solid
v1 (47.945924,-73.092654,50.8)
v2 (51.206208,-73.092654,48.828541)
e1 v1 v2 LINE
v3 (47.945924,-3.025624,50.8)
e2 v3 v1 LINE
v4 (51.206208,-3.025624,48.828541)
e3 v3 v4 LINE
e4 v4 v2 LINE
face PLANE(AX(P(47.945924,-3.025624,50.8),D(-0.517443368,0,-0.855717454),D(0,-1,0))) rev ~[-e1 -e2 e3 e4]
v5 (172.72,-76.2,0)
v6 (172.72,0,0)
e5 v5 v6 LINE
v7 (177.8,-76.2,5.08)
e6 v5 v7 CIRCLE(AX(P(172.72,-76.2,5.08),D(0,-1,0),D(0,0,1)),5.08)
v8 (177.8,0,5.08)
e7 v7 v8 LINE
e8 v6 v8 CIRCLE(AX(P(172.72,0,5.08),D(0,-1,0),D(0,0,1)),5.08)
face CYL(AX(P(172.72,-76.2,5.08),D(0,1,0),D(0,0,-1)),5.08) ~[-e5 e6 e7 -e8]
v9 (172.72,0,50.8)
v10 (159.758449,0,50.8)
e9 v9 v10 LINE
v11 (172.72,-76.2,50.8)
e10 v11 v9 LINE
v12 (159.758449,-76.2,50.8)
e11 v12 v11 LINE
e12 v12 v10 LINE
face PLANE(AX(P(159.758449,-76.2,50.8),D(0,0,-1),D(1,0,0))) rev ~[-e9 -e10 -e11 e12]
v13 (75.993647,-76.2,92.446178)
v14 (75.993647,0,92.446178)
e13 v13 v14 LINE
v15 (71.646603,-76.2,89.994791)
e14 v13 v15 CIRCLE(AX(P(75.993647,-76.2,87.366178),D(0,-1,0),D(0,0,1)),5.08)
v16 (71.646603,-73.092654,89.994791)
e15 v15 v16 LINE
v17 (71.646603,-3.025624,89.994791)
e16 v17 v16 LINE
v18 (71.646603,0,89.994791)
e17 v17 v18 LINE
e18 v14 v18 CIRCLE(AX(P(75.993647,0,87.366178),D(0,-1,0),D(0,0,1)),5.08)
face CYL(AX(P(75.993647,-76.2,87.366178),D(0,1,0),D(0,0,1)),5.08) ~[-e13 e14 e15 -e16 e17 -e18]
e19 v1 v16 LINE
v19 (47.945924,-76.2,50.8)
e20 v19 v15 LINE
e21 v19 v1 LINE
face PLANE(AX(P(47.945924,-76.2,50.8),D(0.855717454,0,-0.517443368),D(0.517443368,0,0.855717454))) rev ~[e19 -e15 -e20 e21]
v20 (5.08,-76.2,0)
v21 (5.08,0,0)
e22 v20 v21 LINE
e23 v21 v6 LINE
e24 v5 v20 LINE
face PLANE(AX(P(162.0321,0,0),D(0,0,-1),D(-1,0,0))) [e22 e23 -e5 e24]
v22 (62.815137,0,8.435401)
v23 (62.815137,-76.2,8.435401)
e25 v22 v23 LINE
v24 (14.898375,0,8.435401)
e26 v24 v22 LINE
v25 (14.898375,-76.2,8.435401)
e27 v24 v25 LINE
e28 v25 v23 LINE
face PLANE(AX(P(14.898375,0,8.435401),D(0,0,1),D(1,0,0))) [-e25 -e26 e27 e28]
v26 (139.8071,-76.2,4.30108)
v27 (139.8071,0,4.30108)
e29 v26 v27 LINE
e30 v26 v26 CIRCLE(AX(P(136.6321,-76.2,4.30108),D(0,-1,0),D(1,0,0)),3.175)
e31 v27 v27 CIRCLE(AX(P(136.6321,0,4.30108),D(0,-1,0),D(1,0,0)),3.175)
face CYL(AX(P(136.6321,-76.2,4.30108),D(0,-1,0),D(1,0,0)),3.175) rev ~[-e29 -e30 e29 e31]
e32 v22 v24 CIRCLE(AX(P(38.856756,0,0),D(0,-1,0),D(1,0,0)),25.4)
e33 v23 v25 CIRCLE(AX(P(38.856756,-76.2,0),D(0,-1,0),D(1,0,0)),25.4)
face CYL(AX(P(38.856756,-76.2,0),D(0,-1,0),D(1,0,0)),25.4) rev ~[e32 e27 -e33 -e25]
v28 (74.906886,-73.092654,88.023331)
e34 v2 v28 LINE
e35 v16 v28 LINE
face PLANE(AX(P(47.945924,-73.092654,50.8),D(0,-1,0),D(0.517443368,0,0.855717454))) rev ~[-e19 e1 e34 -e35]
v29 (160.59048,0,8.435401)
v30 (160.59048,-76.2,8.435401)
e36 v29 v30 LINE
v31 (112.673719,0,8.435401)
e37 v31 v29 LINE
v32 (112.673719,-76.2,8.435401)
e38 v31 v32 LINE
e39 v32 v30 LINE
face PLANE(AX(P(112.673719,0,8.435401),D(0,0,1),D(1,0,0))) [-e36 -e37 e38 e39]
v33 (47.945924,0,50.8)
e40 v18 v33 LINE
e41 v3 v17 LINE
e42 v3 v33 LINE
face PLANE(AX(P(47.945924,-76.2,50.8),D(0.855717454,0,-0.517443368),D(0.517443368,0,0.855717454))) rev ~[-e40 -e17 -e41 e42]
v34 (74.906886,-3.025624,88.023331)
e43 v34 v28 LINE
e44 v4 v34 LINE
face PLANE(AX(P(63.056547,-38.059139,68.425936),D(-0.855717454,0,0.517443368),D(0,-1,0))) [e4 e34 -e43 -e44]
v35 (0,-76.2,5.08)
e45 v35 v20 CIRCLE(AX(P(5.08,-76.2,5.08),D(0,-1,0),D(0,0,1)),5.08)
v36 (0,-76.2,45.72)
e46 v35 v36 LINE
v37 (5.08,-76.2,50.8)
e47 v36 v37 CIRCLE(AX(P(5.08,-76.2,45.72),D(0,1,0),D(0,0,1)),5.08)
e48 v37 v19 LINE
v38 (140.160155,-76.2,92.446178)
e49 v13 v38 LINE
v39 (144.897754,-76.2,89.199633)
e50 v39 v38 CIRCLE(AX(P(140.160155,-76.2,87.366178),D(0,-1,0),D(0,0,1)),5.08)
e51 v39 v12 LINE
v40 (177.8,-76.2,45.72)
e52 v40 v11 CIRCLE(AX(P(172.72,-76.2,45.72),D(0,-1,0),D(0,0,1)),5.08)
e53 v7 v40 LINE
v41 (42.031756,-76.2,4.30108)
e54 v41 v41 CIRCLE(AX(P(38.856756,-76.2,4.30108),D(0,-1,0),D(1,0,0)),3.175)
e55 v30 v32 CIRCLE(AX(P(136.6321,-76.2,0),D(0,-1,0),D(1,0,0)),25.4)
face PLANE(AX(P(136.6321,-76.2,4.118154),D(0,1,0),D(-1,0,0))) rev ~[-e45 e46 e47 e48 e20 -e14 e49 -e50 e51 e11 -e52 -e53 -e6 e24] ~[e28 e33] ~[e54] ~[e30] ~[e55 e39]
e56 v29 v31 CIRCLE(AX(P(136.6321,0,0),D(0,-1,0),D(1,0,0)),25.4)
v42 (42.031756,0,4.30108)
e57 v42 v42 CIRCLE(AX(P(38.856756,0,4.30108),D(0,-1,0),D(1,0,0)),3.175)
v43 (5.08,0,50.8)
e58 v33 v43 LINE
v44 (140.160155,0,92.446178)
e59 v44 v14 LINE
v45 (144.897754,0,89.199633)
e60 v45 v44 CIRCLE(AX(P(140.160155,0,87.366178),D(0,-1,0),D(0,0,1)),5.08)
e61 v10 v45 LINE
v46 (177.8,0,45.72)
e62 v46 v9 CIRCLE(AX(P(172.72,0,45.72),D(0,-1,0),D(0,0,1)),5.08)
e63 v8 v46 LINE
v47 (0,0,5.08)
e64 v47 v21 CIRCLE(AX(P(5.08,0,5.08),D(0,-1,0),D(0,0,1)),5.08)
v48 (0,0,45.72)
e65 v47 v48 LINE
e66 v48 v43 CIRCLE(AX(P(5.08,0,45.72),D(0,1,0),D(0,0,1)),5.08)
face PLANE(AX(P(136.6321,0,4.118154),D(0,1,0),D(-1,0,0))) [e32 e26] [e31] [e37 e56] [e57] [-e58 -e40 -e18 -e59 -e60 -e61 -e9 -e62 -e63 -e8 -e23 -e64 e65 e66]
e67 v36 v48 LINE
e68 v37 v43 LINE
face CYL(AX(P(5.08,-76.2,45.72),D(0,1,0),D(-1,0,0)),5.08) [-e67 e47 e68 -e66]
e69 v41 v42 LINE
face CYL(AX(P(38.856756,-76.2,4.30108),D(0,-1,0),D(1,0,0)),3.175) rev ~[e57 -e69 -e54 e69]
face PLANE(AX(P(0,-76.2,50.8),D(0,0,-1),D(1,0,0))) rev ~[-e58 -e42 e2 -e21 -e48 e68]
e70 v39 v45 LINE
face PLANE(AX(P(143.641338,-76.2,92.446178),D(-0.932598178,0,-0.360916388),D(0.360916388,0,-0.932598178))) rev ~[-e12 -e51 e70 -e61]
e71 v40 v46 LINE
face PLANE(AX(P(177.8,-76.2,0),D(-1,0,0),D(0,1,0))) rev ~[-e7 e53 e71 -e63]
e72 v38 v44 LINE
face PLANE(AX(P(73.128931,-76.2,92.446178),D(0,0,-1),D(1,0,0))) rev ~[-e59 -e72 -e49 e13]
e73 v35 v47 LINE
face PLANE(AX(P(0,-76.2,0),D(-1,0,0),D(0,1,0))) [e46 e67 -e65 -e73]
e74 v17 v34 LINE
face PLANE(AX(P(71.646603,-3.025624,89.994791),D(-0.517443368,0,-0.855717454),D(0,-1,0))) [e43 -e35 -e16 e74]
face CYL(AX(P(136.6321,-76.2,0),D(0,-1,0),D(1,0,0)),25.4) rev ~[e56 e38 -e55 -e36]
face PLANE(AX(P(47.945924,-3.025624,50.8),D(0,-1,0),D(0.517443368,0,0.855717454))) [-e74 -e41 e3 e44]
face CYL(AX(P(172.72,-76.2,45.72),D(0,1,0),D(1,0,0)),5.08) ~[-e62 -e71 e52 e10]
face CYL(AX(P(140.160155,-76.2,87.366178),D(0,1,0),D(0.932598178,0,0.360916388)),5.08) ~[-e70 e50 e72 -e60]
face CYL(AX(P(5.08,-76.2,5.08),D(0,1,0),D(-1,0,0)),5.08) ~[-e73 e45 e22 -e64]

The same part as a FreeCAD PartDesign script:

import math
import FreeCAD as App
import Part
import Sketcher
from FreeCAD import Vector
Q = App.Units.Quantity


def edges_at(feature, points):
    """Names of the edges that pass closest to the given points."""
    edges = feature.Shape.Edges
    near = lambda p: min(range(len(edges)), key=lambda i: edges[i].distToShape(Part.Vertex(*p))[0])
    return sorted({f"Edge{near(p) + 1}" for p in points})

doc = App.newDocument("Part")
body = doc.addObject("PartDesign::Body", "Body")

sketch1 = body.newObject("Sketcher::SketchObject", "Sketch")
sketch1.AttachmentSupport = (doc.getObject("XY_Plane"), [""])
sketch1.MapMode = "FlatFace"
sketch1.addGeometry([
    Part.LineSegment(Vector(0, 0, 0), Vector(0, -76.2, 0)),
    Part.LineSegment(Vector(0, -76.2, 0), Vector(177.8, -76.2, 0)),
    Part.LineSegment(Vector(177.8, -76.2, 0), Vector(177.8, 0, 0)),
    Part.LineSegment(Vector(177.8, 0, 0), Vector(0, 0, 0)),
], False)
sketch1.addConstraint([
    Sketcher.Constraint("Coincident", 0, 2, 1, 1),
    Sketcher.Constraint("Coincident", 1, 2, 2, 1),
    Sketcher.Constraint("Coincident", 2, 2, 3, 1),
    Sketcher.Constraint("Coincident", 3, 2, 0, 1),
    Sketcher.Constraint("Vertical", 0),
    Sketcher.Constraint("Horizontal", 1),
    Sketcher.Constraint("Vertical", 2),
    Sketcher.Constraint("Horizontal", 3),
    Sketcher.Constraint("Coincident", 3, 2, -1, 1),
    Sketcher.Constraint("DistanceX", 1, 1, 1, 2, Q("7 in")),
    Sketcher.Constraint("DistanceY", 0, 2, 0, 1, Q("3 in")),
])
pad1 = body.newObject("PartDesign::Pad", "Pad")
pad1.Profile = sketch1
pad1.Length = Q("4 in")

sketch2 = body.newObject("Sketcher::SketchObject", "Sketch001")
sketch2.AttachmentSupport = (doc.getObject("XZ_Plane"), [""])
sketch2.MapMode = "FlatFace"
sketch2.AttachmentOffset = App.Placement(Vector(0, 0, 3 * 25.4), App.Rotation())
sketch2.addGeometry([
    Part.LineSegment(Vector(0, 101.6, 0), Vector(0, 50.8, 0)),
    Part.LineSegment(Vector(0, 50.8, 0), Vector(47.945924, 50.8, 0)),
    Part.LineSegment(Vector(47.945924, 50.8, 0), Vector(73.128931, 92.446178, 0)),
    Part.LineSegment(Vector(73.128931, 92.446178, 0), Vector(143.641338, 92.446178, 0)),
    Part.LineSegment(Vector(143.641338, 92.446178, 0), Vector(159.758449, 50.8, 0)),
    Part.LineSegment(Vector(159.758449, 50.8, 0), Vector(177.8, 50.8, 0)),
    Part.LineSegment(Vector(177.8, 50.8, 0), Vector(177.8, 101.6, 0)),
    Part.LineSegment(Vector(177.8, 101.6, 0), Vector(0, 101.6, 0)),
], False)
sketch2.addConstraint([
    Sketcher.Constraint("Coincident", 0, 2, 1, 1),
    Sketcher.Constraint("Coincident", 1, 2, 2, 1),
    Sketcher.Constraint("Coincident", 2, 2, 3, 1),
    Sketcher.Constraint("Coincident", 3, 2, 4, 1),
    Sketcher.Constraint("Coincident", 4, 2, 5, 1),
    Sketcher.Constraint("Coincident", 5, 2, 6, 1),
    Sketcher.Constraint("Coincident", 6, 2, 7, 1),
    Sketcher.Constraint("Coincident", 7, 2, 0, 1),
    Sketcher.Constraint("Vertical", 0),
    Sketcher.Constraint("Horizontal", 1),
    Sketcher.Constraint("Horizontal", 3),
    Sketcher.Constraint("Horizontal", 5),
    Sketcher.Constraint("Vertical", 6),
    Sketcher.Constraint("Horizontal", 7),
    Sketcher.Constraint("PointOnObject", 0, 2, -2),
    Sketcher.Constraint("Horizontal", 1, 2, 4, 2),
    Sketcher.Constraint("DistanceX", 7, 2, 7, 1, Q("7 in")),
    Sketcher.Constraint("DistanceY", 0, 2, 0, 1, Q("2 in")),
    Sketcher.Constraint("DistanceY", -1, 1, 0, 2, Q("2 in")),
    Sketcher.Constraint("DistanceX", 5, 1, 5, 2, Q("18.041551 mm")),
    Sketcher.Constraint("Distance", 2, Q("48.668142 mm")),
    Sketcher.Constraint("Distance", 4, Q("44.656079 mm")),
    Sketcher.Constraint("DistanceX", 1, 1, 1, 2, Q("47.945924 mm")),
    Sketcher.Constraint("DistanceX", 3, 1, 3, 2, Q("70.512407 mm")),
])
pocket1 = body.newObject("PartDesign::Pocket", "Pocket")
pocket1.Profile = sketch2
pocket1.Length = Q("8 in")
doc.recompute()

fillet = body.newObject("PartDesign::Fillet", "Fillet")
fillet.Base = (pocket1, edges_at(pocket1, [
    (0, -38.1, 50.8),
    (73.129, -38.1, 92.446),
    (143.641, -38.1, 92.446),
    (177.8, -38.1, 50.8),
    (177.8, -38.1, 0),
    (0, -38.1, 0),
]))
fillet.Radius = Q("0.2 in")

sketch3 = body.newObject("Sketcher::SketchObject", "Sketch002")
sketch3.Placement = App.Placement(Vector(12.615022, 0, -7.628171), App.Rotation(Vector(0, -1, 0), Vector(0.517443368, 0, 0.855717454), Vector(-0.855717454, 0, 0.517443368), "ZXY"))
sketch3.addGeometry([
    Part.LineSegment(Vector(3.025624, 114.083172, 0), Vector(3.025624, 68.279747, 0)),
    Part.LineSegment(Vector(3.025624, 68.279747, 0), Vector(73.092654, 68.279747, 0)),
    Part.LineSegment(Vector(73.092654, 68.279747, 0), Vector(73.092654, 114.083172, 0)),
    Part.LineSegment(Vector(73.092654, 114.083172, 0), Vector(3.025624, 114.083172, 0)),
], False)
sketch3.addConstraint([
    Sketcher.Constraint("Coincident", 0, 2, 1, 1),
    Sketcher.Constraint("Coincident", 1, 2, 2, 1),
    Sketcher.Constraint("Coincident", 2, 2, 3, 1),
    Sketcher.Constraint("Coincident", 3, 2, 0, 1),
    Sketcher.Constraint("Vertical", 0),
    Sketcher.Constraint("Horizontal", 1),
    Sketcher.Constraint("Vertical", 2),
    Sketcher.Constraint("Horizontal", 3),
    Sketcher.Constraint("DistanceX", 1, 1, 1, 2, Q("70.06703 mm")),
    Sketcher.Constraint("DistanceY", 0, 2, 0, 1, Q("45.803425 mm")),
    Sketcher.Constraint("DistanceX", -1, 1, 0, 2, Q("3.025624 mm")),
    Sketcher.Constraint("DistanceY", -1, 1, 0, 2, Q("68.279747 mm")),
])
pocket2 = body.newObject("PartDesign::Pocket", "Pocket001")
pocket2.Profile = sketch3
pocket2.Length = Q("0.15 in")

sketch4 = body.newObject("Sketcher::SketchObject", "Sketch003")
sketch4.AttachmentSupport = (doc.getObject("XZ_Plane"), [""])
sketch4.MapMode = "FlatFace"
sketch4.AttachmentOffset = App.Placement(Vector(0, 0, 3 * 25.4), App.Rotation())
sketch4.addGeometry([
    Part.ArcOfCircle(Part.Circle(Vector(136.6321, 0, 0), Vector(0, 0, 1), 25.4), math.radians(0), math.radians(180)),
    Part.LineSegment(Vector(111.2321, 0, 0), Vector(162.0321, 0, 0)),
    Part.LineSegment(Vector(13.456756, 0, 0), Vector(64.256756, 0, 0)),
    Part.ArcOfCircle(Part.Circle(Vector(38.856756, 0, 0), Vector(0, 0, 1), 25.4), math.radians(0), math.radians(180)),
], False)
sketch4.addConstraint([
    Sketcher.Constraint("Coincident", 0, 1, 1, 2),
    Sketcher.Constraint("Coincident", 1, 1, 0, 2),
    Sketcher.Constraint("Coincident", 2, 1, 3, 2),
    Sketcher.Constraint("Coincident", 3, 1, 2, 2),
    Sketcher.Constraint("Horizontal", 1),
    Sketcher.Constraint("Horizontal", 2),
    Sketcher.Constraint("Equal", 0, 3),
    Sketcher.Constraint("PointOnObject", 0, 3, -1),
    Sketcher.Constraint("PointOnObject", 3, 3, -1),
    Sketcher.Constraint("PointOnObject", 0, 1, -1),
    Sketcher.Constraint("PointOnObject", 2, 1, -1),
    Sketcher.Constraint("Radius", 0, Q("1 in")),
    Sketcher.Constraint("DistanceX", -1, 1, 0, 3, Q("136.6321 mm")),
    Sketcher.Constraint("DistanceX", -1, 1, 3, 3, Q("38.856756 mm")),
])
pocket3 = body.newObject("PartDesign::Pocket", "Pocket002")
pocket3.Profile = sketch4
pocket3.Length = Q("8 in")

sketch5 = body.newObject("Sketcher::SketchObject", "Sketch004")
sketch5.AttachmentSupport = (doc.getObject("XZ_Plane"), [""])
sketch5.MapMode = "FlatFace"
sketch5.addGeometry([
    Part.ArcOfCircle(Part.Circle(Vector(136.6321, 0, 0), Vector(0, 0, 1), 25.4), math.radians(0), math.radians(19.396433)),
    Part.LineSegment(Vector(162.0321, 0, 0), Vector(111.2321, 0, 0)),
    Part.ArcOfCircle(Part.Circle(Vector(136.6321, 0, 0), Vector(0, 0, 1), 25.4), math.radians(160.603567), math.radians(180)),
    Part.LineSegment(Vector(112.673719, 8.435401, 0), Vector(160.59048, 8.435401, 0)),
    Part.ArcOfCircle(Part.Circle(Vector(38.856756, 0, 0), Vector(0, 0, 1), 25.4), math.radians(0), math.radians(19.396433)),
    Part.LineSegment(Vector(64.256756, 0, 0), Vector(13.456756, 0, 0)),
    Part.ArcOfCircle(Part.Circle(Vector(38.856756, 0, 0), Vector(0, 0, 1), 25.4), math.radians(160.603567), math.radians(180)),
    Part.LineSegment(Vector(14.898375, 8.435401, 0), Vector(62.815137, 8.435401, 0)),
], False)
sketch5.addConstraint([
    Sketcher.Constraint("Coincident", 0, 1, 1, 1),
    Sketcher.Constraint("Coincident", 1, 2, 2, 2),
    Sketcher.Constraint("Coincident", 2, 1, 3, 1),
    Sketcher.Constraint("Coincident", 3, 2, 0, 2),
    Sketcher.Constraint("Coincident", 4, 1, 5, 1),
    Sketcher.Constraint("Coincident", 5, 2, 6, 2),
    Sketcher.Constraint("Coincident", 6, 1, 7, 1),
    Sketcher.Constraint("Coincident", 7, 2, 4, 2),
    Sketcher.Constraint("Horizontal", 1),
    Sketcher.Constraint("Horizontal", 3),
    Sketcher.Constraint("Horizontal", 5),
    Sketcher.Constraint("Horizontal", 7),
    Sketcher.Constraint("Coincident", 2, 3, 0, 3),
    Sketcher.Constraint("Coincident", 6, 3, 4, 3),
    Sketcher.Constraint("Equal", 0, 2),
    Sketcher.Constraint("Equal", 2, 4),
    Sketcher.Constraint("Equal", 4, 6),
    Sketcher.Constraint("PointOnObject", 0, 3, -1),
    Sketcher.Constraint("PointOnObject", 4, 3, -1),
    Sketcher.Constraint("PointOnObject", 0, 1, -1),
    Sketcher.Constraint("PointOnObject", 4, 1, -1),
    Sketcher.Constraint("Horizontal", 3, 2, 6, 1),
    Sketcher.Constraint("Radius", 0, Q("1 in")),
    Sketcher.Constraint("DistanceX", 3, 1, 3, 2, Q("47.916761 mm")),
    Sketcher.Constraint("DistanceX", -1, 1, 0, 3, Q("136.6321 mm")),
    Sketcher.Constraint("DistanceX", -1, 1, 4, 3, Q("38.856756 mm")),
])
pad2 = body.newObject("PartDesign::Pad", "Pad001")
pad2.Profile = sketch5
pad2.Length = Q("3 in")

sketch6 = body.newObject("Sketcher::SketchObject", "Sketch005")
sketch6.AttachmentSupport = (doc.getObject("XZ_Plane"), [""])
sketch6.MapMode = "FlatFace"
sketch6.AttachmentOffset = App.Placement(Vector(0, 0, 3 * 25.4), App.Rotation())
sketch6.addGeometry([
    Part.Circle(Vector(38.856756, 4.30108, 0), Vector(0, 0, 1), 3.175),
    Part.Circle(Vector(136.6321, 4.30108, 0), Vector(0, 0, 1), 3.175),
], False)
sketch6.addConstraint([
    Sketcher.Constraint("Equal", 0, 1),
    Sketcher.Constraint("Horizontal", 0, 3, 1, 3),
    Sketcher.Constraint("Diameter", 0, Q("0.25 in")),
    Sketcher.Constraint("DistanceX", -1, 1, 1, 3, Q("136.6321 mm")),
    Sketcher.Constraint("DistanceY", -1, 1, 0, 3, Q("4.30108 mm")),
    Sketcher.Constraint("DistanceX", -1, 1, 0, 3, Q("38.856756 mm")),
])
pocket4 = body.newObject("PartDesign::Pocket", "Pocket003")
pocket4.Profile = sketch6
pocket4.Length = Q("3 in")

doc.recompute()
